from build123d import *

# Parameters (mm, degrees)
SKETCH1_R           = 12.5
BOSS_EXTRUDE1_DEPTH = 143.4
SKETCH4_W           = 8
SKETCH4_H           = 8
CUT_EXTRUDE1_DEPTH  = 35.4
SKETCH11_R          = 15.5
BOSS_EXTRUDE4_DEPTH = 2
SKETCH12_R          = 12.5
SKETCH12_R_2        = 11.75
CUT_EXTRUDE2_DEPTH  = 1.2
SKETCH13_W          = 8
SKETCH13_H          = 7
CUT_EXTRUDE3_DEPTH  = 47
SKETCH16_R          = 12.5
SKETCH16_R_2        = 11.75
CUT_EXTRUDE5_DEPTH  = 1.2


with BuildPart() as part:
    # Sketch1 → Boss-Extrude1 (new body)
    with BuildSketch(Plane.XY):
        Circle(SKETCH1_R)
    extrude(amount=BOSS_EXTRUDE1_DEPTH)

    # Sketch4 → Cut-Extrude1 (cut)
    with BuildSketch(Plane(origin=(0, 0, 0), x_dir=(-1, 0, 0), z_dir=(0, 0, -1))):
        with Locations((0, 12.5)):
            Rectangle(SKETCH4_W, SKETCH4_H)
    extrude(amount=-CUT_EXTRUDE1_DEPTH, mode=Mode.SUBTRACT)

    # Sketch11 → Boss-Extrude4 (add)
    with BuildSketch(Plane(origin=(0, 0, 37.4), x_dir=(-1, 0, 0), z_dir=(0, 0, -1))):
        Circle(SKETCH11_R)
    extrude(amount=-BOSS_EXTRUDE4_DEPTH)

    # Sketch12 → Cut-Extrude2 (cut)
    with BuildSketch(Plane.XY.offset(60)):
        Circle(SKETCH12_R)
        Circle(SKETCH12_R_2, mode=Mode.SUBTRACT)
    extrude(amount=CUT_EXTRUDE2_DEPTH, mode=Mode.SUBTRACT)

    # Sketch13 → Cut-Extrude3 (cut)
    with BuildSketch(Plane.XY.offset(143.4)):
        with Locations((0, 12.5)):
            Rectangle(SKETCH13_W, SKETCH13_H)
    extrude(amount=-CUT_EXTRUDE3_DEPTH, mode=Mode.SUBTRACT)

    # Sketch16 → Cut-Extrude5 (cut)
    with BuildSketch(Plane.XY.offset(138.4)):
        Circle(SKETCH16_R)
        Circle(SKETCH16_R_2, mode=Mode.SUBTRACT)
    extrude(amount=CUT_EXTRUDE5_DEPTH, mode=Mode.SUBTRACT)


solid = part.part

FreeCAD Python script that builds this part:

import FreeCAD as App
import Part
import Sketcher
from FreeCAD import Vector


def add_polygon(sketch, points):
    """Adds a closed chain of lines whose ends are joined by coincident constraints."""
    first, n = sketch.GeometryCount, len(points)
    for a, b in zip(points, points[1:] + points[:1]):
        sketch.addGeometry(Part.LineSegment(App.Vector(*a, 0), App.Vector(*b, 0)), False)
    for i in range(n):
        sketch.addConstraint(Sketcher.Constraint("Coincident", first + i, 2, first + (i + 1) % n, 1))

doc = App.newDocument("Part")
body = doc.addObject("PartDesign::Body", "Body")

# Sketch on XY plane
sketch1 = body.newObject("Sketcher::SketchObject", "Sketch")
sketch1.AttachmentSupport = (doc.getObject("XY_Plane"), [""])
sketch1.MapMode = "FlatFace"
sketch1.addGeometry(Part.Circle(Vector(0, 0, 0), Vector(0, 0, 1), 12), False)
sketch1.addConstraint([
    Sketcher.Constraint("Coincident", 0, 3, -1, 1),
    Sketcher.Constraint("Diameter", 0, 25.0),
])
pad1 = body.newObject("PartDesign::Pad", "Pad")
pad1.Profile = sketch1
pad1.Length = 143.4

# Sketch on XY plane
sketch2 = body.newObject("Sketcher::SketchObject", "Sketch001")
sketch2.AttachmentSupport = (doc.getObject("XY_Plane"), [""])
sketch2.MapMode = "FlatFace"
add_polygon(sketch2, [(4, 16), (4, 8), (-4, 8), (-4, 16)])  # lines 0-3
sketch2.addConstraint([
    Sketcher.Constraint("Vertical", 0),
    Sketcher.Constraint("Horizontal", 1),
    Sketcher.Constraint("Vertical", 2),
    Sketcher.Constraint("Horizontal", 3),
    Sketcher.Constraint("Equal", 3, 0),
    Sketcher.Constraint("DistanceX", 1, 2, 1, 1, 8.0),
    Sketcher.Constraint("DistanceX", -1, 1, 0, 2, 4.0),
    Sketcher.Constraint("DistanceY", -1, 1, 0, 2, 8.5),
])
pocket1 = body.newObject("PartDesign::Pocket", "Pocket")
pocket1.Profile = sketch2
pocket1.Length = 35.4
pocket1.Reversed = True

# Sketch on XY plane
sketch3 = body.newObject("Sketcher::SketchObject", "Sketch002")
sketch3.AttachmentSupport = (doc.getObject("XY_Plane"), [""])
sketch3.MapMode = "FlatFace"
sketch3.AttachmentOffset = App.Placement(Vector(0, 0, 37.4), App.Rotation())
sketch3.addGeometry(Part.Circle(Vector(0, 0, 0), Vector(0, 0, 1), 16), False)
sketch3.addConstraint([
    Sketcher.Constraint("Coincident", 0, 3, -1, 1),
    Sketcher.Constraint("Diameter", 0, 31.0),
])
pad2 = body.newObject("PartDesign::Pad", "Pad001")
pad2.Profile = sketch3
pad2.Length = 2

# Sketch on XY plane
sketch4 = body.newObject("Sketcher::SketchObject", "Sketch003")
sketch4.AttachmentSupport = (doc.getObject("XY_Plane"), [""])
sketch4.MapMode = "FlatFace"
sketch4.AttachmentOffset = App.Placement(Vector(0, 0, 60), App.Rotation())
sketch4.addGeometry([
    Part.Circle(Vector(0, 0, 0), Vector(0, 0, 1), 12),
    Part.Circle(Vector(0, 0, 0), Vector(0, 0, 1), 12),
], False)
sketch4.addConstraint([
    Sketcher.Constraint("Coincident", 0, 3, -1, 1),
    Sketcher.Constraint("Coincident", 1, 3, -1, 1),
    Sketcher.Constraint("Diameter", 0, 25.0),
    Sketcher.Constraint("Diameter", 1, 23.5),
])
pocket2 = body.newObject("PartDesign::Pocket", "Pocket001")
pocket2.Profile = sketch4
pocket2.Length = 1.2
pocket2.Reversed = True

# Sketch on XY plane
sketch5 = body.newObject("Sketcher::SketchObject", "Sketch004")
sketch5.AttachmentSupport = (doc.getObject("XY_Plane"), [""])
sketch5.MapMode = "FlatFace"
sketch5.AttachmentOffset = App.Placement(Vector(0, 0, 143.4), App.Rotation())
add_polygon(sketch5, [(-4, 16), (-4, 9), (4, 9), (4, 16)])  # lines 0-3
sketch5.addConstraint([
    Sketcher.Constraint("Vertical", 0),
    Sketcher.Constraint("Horizontal", 1),
    Sketcher.Constraint("Vertical", 2),
    Sketcher.Constraint("Horizontal", 3),
    Sketcher.Constraint("DistanceX", 1, 1, 1, 2, 8.0),
    Sketcher.Constraint("DistanceY", 0, 2, 0, 1, 7.0),
    Sketcher.Constraint("DistanceX", 0, 2, -1, 1, 4.0),
    Sketcher.Constraint("DistanceY", -1, 1, 0, 2, 9.0),
])
pocket3 = body.newObject("PartDesign::Pocket", "Pocket002")
pocket3.Profile = sketch5
pocket3.Length = 47

# Sketch on XY plane
sketch6 = body.newObject("Sketcher::SketchObject", "Sketch005")
sketch6.AttachmentSupport = (doc.getObject("XY_Plane"), [""])
sketch6.MapMode = "FlatFace"
sketch6.AttachmentOffset = App.Placement(Vector(0, 0, 138.4), App.Rotation())
sketch6.addGeometry([
    Part.Circle(Vector(0, 0, 0), Vector(0, 0, 1), 12),
    Part.Circle(Vector(0, 0, 0), Vector(0, 0, 1), 12),
], False)
sketch6.addConstraint([
    Sketcher.Constraint("Coincident", 0, 3, -1, 1),
    Sketcher.Constraint("Coincident", 1, 3, -1, 1),
    Sketcher.Constraint("Diameter", 0, 25.0),
    Sketcher.Constraint("Diameter", 1, 23.5),
])
pocket4 = body.newObject("PartDesign::Pocket", "Pocket003")
pocket4.Profile = sketch6
pocket4.Length = 1.2
pocket4.Reversed = True

doc.recompute()
